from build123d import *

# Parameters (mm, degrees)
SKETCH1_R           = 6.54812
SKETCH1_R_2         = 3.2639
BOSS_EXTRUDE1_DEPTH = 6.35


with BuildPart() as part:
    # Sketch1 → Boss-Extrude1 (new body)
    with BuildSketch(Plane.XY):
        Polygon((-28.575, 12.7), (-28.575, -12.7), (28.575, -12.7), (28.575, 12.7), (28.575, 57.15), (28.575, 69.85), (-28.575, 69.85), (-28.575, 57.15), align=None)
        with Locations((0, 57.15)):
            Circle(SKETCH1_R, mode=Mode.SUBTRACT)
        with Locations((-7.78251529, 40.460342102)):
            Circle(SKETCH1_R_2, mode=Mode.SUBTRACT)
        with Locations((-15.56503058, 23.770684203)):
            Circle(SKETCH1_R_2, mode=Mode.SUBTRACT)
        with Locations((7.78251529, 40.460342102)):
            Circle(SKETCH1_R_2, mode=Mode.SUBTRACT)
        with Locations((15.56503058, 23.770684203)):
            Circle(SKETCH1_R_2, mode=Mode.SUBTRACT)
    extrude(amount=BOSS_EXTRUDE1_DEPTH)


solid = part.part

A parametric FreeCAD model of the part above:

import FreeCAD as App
import Part
import Sketcher

V = App.Vector
Q = App.Units.Quantity


def add_polygon(sketch, points):
    """Adds a closed chain of lines whose ends are joined by coincident constraints."""
    first, n = sketch.GeometryCount, len(points)
    for a, b in zip(points, points[1:] + points[:1]):
        sketch.addGeometry(Part.LineSegment(App.Vector(*a, 0), App.Vector(*b, 0)), False)
    for i in range(n):
        sketch.addConstraint(Sketcher.Constraint("Coincident", first + i, 2, first + (i + 1) % n, 1))

doc = App.newDocument("Part")
body = doc.addObject("PartDesign::Body", "Body")

sketch1 = body.newObject("Sketcher::SketchObject", "Sketch")
sketch1.AttachmentSupport = (doc.getObject("XY_Plane"), [""])
sketch1.MapMode = "FlatFace"
add_polygon(sketch1, [(-28.6, -12.7), (28.6, -12.7), (28.6, 69.8), (-28.6, 69.8)])
sketch1.addGeometry(Part.Circle(V(-15.6, 23.8, 0), V(0, 0, 1), 3.3), False)
sketch1.addGeometry(Part.Circle(V(-7.8, 40.5, 0), V(0, 0, 1), 3.3), False)
sketch1.addGeometry(Part.Circle(V(15.6, 23.8, 0), V(0, 0, 1), 3.3), False)
sketch1.addGeometry(Part.Circle(V(7.8, 40.5, 0), V(0, 0, 1), 3.3), False)
sketch1.addGeometry(Part.Circle(V(0, 57.1, 0), V(0, 0, 1), 6.5), False)
sketch1.addConstraint(Sketcher.Constraint("Horizontal", 0))
sketch1.addConstraint(Sketcher.Constraint("Vertical", 1))
sketch1.addConstraint(Sketcher.Constraint("Horizontal", 2))
sketch1.addConstraint(Sketcher.Constraint("Vertical", 3))
sketch1.addConstraint(Sketcher.Constraint("Equal", 4, 5))
sketch1.addConstraint(Sketcher.Constraint("Equal", 5, 6))
sketch1.addConstraint(Sketcher.Constraint("Equal", 6, 7))
sketch1.addConstraint(Sketcher.Constraint("Symmetric", 4, 3, 6, 3, -2))
sketch1.addConstraint(Sketcher.Constraint("Symmetric", 5, 3, 7, 3, -2))
sketch1.addConstraint(Sketcher.Constraint("PointOnObject", 8, 3, -2))
sketch1.addConstraint(Sketcher.Constraint("Diameter", 4, Q("0.257 in")))
sketch1.addConstraint(Sketcher.Constraint("Diameter", 8, Q("0.5156 in")))
sketch1.addConstraint(Sketcher.Constraint("DistanceX", 0, 1, 0, 2, Q("2.25 in")))
sketch1.addConstraint(Sketcher.Constraint("DistanceY", 1, 1, 1, 2, Q("3.25 in")))
sketch1.addConstraint(Sketcher.Constraint("DistanceY", 0, 2, -1, 1, Q("0.5 in")))
sketch1.addConstraint(Sketcher.Constraint("DistanceY", 8, 3, 1, 2, Q("0.5 in")))
sketch1.addConstraint(Sketcher.Constraint("DistanceX", -1, 1, 0, 2, Q("1.125 in")))
sketch1.addConstraint(Sketcher.Constraint("DistanceX", 4, 3, -1, 1, 15.565031))
sketch1.addConstraint(Sketcher.Constraint("DistanceX", 5, 3, 7, 3, 15.565031))
sketch1.addConstraint(Sketcher.Constraint("DistanceY", -1, 1, 4, 3, 23.770684))
sketch1.addConstraint(Sketcher.Constraint("DistanceY", -1, 1, 5, 3, 40.460342))
pad1 = body.newObject("PartDesign::Pad", "Pad")
pad1.Profile = sketch1
pad1.Length = Q("0.25 in")

doc.recompute()
